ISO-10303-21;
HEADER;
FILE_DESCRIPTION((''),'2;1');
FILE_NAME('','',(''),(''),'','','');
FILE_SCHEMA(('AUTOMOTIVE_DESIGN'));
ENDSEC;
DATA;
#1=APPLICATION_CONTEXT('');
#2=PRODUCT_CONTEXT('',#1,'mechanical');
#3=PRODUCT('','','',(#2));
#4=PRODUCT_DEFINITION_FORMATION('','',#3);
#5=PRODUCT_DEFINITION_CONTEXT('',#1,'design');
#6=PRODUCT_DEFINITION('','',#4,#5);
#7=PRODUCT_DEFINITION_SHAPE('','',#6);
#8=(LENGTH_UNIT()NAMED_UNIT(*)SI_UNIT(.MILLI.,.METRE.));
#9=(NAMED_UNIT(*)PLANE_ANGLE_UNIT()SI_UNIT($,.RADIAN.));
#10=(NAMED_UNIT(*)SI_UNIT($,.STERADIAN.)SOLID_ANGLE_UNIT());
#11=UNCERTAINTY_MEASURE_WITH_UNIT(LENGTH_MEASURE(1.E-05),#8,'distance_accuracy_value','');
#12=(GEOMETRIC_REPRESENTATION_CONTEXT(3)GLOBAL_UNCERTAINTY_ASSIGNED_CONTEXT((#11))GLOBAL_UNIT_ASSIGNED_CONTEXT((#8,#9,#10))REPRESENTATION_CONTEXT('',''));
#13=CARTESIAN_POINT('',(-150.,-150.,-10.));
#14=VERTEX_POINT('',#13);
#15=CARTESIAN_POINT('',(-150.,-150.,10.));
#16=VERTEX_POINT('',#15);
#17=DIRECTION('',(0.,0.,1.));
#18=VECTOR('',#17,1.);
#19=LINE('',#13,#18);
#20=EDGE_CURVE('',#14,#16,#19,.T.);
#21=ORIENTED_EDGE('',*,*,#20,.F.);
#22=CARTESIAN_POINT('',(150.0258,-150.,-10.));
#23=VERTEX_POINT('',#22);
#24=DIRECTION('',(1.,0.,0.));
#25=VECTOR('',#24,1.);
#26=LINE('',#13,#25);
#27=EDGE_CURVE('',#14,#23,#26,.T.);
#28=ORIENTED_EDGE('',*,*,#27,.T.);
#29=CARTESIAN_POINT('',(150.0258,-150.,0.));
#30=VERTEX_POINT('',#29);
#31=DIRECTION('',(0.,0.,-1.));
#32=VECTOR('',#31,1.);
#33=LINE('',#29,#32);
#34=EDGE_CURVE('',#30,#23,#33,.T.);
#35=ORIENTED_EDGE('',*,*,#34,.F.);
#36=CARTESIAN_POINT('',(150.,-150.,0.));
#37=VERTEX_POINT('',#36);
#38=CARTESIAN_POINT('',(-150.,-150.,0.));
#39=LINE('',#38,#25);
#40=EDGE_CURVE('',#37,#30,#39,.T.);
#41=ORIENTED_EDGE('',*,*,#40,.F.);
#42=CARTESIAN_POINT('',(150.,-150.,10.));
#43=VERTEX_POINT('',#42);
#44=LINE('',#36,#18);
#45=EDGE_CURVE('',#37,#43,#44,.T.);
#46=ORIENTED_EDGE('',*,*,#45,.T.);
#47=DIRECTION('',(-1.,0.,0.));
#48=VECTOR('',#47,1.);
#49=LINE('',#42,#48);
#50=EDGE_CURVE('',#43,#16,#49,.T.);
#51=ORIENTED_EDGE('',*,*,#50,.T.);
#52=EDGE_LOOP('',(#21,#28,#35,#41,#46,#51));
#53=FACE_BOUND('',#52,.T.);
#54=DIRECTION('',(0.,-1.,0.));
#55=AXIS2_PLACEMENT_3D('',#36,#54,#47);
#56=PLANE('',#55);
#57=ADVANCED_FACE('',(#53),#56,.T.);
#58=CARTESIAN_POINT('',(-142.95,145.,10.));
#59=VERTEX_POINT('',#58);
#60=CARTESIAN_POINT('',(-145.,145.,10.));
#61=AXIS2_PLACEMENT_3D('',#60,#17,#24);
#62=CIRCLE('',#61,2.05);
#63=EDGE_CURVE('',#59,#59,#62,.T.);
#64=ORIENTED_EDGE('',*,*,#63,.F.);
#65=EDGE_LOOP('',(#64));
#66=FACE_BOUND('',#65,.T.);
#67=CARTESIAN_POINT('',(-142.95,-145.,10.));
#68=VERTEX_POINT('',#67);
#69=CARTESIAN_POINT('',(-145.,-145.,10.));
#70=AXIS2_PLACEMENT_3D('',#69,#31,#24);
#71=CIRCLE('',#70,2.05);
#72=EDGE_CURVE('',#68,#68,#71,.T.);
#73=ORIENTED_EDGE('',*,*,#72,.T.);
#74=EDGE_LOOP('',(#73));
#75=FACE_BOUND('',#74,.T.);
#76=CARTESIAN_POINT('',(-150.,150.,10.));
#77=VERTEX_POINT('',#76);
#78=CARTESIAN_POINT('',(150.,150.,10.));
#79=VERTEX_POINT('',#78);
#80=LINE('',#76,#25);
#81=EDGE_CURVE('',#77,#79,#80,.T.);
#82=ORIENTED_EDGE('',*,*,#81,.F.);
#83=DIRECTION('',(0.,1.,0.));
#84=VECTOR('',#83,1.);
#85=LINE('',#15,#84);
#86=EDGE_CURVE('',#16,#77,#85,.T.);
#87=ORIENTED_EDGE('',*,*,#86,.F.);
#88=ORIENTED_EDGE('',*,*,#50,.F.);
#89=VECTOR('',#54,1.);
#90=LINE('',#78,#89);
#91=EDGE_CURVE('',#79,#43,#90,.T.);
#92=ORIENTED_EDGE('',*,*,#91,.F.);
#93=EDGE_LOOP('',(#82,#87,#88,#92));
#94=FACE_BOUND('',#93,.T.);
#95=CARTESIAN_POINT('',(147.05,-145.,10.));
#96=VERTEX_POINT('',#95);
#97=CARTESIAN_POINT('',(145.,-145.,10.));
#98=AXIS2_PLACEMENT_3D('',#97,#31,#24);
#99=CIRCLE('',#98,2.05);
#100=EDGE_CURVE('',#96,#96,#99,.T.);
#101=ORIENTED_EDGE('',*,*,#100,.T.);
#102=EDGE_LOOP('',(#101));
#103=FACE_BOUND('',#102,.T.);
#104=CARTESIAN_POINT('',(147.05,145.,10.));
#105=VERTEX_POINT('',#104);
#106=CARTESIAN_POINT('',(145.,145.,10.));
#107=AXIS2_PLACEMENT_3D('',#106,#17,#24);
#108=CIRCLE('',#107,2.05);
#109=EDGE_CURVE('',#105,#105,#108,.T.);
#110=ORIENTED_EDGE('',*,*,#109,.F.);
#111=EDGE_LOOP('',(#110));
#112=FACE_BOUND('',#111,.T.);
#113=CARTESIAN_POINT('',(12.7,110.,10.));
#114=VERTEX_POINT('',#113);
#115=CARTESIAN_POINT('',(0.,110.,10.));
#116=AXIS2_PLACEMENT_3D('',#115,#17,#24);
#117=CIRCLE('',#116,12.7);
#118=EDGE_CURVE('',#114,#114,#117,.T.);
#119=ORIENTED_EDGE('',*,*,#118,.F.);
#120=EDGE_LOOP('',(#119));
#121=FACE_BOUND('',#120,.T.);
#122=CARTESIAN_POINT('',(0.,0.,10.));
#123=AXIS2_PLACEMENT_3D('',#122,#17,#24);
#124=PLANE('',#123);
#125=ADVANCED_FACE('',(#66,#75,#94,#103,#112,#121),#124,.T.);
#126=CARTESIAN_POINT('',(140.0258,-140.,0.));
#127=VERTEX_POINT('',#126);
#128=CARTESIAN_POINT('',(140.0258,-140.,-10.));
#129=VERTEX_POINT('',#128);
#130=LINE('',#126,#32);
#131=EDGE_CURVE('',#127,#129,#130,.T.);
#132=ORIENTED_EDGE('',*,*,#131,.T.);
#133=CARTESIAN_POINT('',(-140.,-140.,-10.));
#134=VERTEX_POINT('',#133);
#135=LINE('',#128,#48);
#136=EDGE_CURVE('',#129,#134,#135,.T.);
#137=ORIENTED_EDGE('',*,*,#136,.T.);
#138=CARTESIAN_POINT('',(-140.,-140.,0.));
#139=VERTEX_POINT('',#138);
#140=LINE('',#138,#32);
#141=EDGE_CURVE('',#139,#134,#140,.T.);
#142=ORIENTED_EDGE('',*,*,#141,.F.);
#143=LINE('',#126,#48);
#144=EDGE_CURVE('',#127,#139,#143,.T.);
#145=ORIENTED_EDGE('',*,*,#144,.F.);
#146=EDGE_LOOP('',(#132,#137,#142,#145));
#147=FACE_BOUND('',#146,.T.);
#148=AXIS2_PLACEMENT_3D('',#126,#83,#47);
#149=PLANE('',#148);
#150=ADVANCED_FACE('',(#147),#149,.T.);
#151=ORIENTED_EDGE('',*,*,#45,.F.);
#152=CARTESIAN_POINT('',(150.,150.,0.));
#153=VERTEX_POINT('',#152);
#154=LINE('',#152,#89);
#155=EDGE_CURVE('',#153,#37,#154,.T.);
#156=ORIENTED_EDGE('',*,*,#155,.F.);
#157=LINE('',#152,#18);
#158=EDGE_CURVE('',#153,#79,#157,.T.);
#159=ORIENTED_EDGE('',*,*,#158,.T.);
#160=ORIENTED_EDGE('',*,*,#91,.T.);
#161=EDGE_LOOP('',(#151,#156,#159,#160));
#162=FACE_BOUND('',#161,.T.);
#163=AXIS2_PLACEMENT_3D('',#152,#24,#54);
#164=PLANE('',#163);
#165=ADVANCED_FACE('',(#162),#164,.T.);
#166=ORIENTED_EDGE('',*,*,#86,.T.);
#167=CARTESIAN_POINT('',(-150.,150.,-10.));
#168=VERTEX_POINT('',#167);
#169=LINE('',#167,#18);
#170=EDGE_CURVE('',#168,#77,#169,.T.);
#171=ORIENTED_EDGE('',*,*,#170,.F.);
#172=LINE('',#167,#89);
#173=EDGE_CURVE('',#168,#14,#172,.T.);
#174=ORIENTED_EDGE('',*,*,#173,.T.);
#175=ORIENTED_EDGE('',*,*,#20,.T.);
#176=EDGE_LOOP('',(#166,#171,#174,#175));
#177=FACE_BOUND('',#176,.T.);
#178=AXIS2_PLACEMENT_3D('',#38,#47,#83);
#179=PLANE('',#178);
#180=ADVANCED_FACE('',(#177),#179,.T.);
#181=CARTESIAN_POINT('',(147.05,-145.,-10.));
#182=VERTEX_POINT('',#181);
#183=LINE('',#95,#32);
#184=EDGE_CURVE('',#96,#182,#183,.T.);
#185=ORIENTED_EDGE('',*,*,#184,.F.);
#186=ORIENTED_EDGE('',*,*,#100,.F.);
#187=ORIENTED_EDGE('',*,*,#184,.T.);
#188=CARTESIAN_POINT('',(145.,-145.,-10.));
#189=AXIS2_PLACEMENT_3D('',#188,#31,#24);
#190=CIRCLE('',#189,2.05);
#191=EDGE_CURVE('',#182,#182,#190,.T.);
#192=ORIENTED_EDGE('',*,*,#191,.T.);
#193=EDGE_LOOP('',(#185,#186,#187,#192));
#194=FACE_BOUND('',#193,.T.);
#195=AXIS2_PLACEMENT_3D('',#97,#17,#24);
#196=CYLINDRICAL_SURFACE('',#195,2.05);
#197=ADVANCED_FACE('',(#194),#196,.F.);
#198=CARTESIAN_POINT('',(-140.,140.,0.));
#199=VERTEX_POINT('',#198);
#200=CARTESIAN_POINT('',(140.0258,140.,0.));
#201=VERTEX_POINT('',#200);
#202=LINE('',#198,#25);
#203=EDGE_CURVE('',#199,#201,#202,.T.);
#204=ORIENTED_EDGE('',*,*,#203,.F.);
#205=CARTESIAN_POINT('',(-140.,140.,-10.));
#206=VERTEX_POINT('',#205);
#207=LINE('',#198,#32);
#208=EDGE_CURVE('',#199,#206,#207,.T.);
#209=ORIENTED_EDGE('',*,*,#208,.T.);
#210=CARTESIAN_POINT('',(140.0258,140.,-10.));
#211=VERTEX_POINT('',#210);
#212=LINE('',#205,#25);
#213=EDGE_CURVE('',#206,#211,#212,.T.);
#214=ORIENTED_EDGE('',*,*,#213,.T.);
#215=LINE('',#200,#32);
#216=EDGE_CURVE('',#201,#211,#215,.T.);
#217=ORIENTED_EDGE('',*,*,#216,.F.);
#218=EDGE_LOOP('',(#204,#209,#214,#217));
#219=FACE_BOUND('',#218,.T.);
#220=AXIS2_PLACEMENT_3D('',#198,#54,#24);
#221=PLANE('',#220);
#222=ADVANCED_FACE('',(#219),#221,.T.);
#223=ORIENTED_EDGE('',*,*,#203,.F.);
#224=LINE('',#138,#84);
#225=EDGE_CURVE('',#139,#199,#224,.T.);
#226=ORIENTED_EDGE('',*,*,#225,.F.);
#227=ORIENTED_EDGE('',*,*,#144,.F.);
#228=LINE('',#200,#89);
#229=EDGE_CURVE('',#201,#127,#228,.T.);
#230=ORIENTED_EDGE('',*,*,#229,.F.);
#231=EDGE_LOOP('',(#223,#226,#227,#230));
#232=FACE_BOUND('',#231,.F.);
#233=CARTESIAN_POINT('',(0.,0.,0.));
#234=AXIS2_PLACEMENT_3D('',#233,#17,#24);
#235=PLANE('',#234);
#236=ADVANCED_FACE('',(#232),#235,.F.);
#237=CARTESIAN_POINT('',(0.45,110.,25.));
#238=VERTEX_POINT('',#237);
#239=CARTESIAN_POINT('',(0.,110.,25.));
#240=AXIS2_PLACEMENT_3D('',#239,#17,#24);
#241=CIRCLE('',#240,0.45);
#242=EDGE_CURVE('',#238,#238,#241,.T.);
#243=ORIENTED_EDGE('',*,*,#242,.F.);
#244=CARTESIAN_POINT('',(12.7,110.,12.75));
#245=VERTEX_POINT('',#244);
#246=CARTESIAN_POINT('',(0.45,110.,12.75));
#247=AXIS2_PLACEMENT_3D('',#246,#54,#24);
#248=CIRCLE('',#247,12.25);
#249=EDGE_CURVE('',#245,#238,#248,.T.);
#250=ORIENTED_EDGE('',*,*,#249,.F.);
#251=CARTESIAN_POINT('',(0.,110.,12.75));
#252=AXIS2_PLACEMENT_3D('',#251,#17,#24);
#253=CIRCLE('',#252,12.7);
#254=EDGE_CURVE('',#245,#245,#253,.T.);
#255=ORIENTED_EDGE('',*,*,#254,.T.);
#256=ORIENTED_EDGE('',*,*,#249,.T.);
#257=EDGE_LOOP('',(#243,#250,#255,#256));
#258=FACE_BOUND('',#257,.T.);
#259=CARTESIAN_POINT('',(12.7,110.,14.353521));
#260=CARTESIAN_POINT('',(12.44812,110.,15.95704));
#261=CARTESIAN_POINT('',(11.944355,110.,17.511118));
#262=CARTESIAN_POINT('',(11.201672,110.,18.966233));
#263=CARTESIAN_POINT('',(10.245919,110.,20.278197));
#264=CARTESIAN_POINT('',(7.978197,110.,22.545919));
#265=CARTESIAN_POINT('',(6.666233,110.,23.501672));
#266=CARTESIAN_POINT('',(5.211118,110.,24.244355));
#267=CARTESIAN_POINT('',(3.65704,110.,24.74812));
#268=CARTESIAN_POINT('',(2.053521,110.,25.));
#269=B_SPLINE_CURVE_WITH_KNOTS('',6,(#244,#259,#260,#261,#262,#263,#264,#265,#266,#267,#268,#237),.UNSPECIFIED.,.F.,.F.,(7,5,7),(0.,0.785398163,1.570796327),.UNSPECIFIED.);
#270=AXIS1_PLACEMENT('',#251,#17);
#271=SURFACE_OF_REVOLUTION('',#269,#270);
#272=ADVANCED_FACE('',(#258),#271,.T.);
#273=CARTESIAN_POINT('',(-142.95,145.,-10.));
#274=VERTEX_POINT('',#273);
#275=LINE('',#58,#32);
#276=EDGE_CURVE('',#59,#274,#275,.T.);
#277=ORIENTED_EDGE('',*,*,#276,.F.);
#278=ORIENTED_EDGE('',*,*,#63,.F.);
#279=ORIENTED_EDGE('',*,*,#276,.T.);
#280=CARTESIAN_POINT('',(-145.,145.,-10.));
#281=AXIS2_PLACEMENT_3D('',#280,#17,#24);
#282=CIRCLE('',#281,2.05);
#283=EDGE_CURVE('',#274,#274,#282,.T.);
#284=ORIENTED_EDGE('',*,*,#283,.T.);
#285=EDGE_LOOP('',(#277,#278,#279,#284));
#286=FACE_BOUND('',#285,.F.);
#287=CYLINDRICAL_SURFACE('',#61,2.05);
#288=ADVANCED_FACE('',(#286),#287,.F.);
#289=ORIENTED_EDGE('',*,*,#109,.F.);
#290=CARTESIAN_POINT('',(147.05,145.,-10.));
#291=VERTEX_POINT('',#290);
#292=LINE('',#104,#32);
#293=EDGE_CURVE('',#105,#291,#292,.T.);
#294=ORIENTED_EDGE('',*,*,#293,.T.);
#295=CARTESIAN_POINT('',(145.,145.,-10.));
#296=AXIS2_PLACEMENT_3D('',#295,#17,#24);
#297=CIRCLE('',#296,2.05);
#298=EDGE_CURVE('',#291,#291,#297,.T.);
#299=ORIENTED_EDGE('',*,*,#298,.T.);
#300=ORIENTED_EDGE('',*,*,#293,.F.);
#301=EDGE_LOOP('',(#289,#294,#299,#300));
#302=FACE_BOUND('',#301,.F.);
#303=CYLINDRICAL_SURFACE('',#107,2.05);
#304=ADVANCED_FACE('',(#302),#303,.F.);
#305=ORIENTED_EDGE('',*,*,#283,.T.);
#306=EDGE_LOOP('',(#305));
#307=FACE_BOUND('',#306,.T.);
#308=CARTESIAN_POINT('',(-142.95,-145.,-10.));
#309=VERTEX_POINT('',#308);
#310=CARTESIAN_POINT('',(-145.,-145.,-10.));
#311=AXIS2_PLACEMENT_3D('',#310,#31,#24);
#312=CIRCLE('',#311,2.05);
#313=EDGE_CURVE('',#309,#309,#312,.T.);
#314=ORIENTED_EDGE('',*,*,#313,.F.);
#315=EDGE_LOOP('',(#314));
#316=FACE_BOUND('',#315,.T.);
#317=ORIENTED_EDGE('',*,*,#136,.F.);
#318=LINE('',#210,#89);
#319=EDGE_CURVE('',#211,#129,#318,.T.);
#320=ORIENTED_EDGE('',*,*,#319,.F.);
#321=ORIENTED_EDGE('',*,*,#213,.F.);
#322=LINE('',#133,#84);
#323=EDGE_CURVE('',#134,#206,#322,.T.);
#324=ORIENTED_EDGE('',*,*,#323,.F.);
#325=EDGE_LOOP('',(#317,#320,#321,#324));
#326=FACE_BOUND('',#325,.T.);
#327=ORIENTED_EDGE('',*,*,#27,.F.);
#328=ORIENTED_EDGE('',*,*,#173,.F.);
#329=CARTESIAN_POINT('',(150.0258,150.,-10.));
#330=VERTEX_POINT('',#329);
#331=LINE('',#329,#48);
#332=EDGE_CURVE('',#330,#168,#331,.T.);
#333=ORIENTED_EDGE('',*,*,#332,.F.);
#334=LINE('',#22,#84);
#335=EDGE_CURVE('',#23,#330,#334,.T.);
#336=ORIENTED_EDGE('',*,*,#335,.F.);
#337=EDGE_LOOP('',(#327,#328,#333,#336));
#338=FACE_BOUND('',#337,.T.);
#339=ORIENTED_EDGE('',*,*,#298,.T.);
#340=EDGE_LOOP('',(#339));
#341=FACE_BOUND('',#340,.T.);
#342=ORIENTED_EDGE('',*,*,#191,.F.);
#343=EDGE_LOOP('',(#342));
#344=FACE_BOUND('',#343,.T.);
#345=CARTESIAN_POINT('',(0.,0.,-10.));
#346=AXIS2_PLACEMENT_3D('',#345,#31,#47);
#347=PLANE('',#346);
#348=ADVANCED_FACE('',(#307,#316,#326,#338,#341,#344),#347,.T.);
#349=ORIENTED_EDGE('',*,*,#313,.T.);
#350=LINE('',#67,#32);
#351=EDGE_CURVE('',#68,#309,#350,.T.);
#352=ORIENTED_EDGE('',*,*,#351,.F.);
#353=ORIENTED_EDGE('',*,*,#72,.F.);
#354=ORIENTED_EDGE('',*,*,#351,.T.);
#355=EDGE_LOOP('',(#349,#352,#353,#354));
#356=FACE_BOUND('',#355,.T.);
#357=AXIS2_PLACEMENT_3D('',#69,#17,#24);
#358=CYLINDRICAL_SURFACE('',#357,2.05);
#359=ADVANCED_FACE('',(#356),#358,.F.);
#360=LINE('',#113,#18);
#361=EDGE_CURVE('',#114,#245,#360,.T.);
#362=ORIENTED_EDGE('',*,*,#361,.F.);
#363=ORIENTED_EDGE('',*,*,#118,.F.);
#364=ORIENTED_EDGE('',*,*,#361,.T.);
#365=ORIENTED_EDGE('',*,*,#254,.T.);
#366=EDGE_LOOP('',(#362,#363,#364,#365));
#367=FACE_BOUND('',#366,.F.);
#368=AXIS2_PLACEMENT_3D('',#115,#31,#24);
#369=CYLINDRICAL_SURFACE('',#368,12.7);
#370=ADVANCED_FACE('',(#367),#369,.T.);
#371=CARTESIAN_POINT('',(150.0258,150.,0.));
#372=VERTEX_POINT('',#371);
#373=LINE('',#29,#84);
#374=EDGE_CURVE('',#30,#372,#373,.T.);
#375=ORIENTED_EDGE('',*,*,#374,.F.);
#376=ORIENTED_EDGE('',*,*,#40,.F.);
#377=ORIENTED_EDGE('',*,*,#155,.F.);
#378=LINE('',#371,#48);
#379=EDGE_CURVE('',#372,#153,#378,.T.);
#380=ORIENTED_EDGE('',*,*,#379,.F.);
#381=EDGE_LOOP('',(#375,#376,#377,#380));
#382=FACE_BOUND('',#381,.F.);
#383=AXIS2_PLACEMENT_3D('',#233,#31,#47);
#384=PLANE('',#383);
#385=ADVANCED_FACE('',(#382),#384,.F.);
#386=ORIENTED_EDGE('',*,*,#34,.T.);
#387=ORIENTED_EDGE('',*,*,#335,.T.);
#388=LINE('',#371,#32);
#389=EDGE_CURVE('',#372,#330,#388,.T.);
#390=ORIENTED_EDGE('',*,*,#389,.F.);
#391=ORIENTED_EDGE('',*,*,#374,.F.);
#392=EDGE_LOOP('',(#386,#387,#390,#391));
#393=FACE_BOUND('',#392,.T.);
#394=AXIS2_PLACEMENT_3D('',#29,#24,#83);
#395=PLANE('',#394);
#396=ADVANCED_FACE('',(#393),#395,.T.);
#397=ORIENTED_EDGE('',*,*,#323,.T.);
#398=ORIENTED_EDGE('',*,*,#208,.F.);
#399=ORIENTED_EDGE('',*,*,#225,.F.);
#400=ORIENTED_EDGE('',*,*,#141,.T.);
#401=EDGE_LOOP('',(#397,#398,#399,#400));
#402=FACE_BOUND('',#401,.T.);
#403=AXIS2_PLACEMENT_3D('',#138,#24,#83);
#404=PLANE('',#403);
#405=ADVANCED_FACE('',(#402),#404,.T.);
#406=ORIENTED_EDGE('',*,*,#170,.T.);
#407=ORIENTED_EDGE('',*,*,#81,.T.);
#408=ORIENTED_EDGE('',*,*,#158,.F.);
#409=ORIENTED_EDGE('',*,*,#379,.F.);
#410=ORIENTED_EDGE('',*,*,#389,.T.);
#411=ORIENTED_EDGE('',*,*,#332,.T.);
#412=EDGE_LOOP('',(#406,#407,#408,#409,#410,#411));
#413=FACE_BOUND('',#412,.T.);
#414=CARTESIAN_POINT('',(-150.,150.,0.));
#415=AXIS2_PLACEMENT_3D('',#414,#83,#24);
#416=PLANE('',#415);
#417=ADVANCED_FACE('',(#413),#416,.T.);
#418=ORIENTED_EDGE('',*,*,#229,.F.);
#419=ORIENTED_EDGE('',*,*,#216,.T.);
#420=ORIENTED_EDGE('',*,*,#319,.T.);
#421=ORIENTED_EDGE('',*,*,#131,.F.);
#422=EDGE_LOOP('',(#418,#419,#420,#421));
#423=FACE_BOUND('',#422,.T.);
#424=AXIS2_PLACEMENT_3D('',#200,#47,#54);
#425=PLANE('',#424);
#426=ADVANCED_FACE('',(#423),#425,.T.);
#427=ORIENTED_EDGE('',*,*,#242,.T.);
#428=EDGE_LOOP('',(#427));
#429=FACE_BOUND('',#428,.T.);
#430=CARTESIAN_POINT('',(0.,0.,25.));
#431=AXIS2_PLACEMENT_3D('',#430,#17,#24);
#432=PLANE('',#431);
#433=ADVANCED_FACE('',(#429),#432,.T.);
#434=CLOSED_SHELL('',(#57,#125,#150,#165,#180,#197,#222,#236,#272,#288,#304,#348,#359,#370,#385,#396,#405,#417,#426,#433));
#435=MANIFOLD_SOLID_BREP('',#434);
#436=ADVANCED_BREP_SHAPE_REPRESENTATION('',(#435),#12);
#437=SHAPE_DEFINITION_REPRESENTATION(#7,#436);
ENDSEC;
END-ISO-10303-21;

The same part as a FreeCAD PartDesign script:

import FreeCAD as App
import Part
import Sketcher
from FreeCAD import Vector
Q = App.Units.Quantity


def edges_at(feature, points):
    """Names of the edges that pass closest to the given points."""
    edges = feature.Shape.Edges
    near = lambda p: min(range(len(edges)), key=lambda i: edges[i].distToShape(Part.Vertex(*p))[0])
    return sorted({f"Edge{near(p) + 1}" for p in points})

doc = App.newDocument("Part")
body = doc.addObject("PartDesign::Body", "Body")

sketch1 = body.newObject("Sketcher::SketchObject", "Sketch")
sketch1.AttachmentSupport = (doc.getObject("XY_Plane"), [""])
sketch1.MapMode = "FlatFace"
sketch1.addGeometry([
    Part.LineSegment(Vector(150, 150, 0), Vector(-150, 150, 0)),
    Part.LineSegment(Vector(-150, 150, 0), Vector(-150, -150, 0)),
    Part.LineSegment(Vector(-150, -150, 0), Vector(150, -150, 0)),
    Part.LineSegment(Vector(150, -150, 0), Vector(150, 150, 0)),
], False)
sketch1.addConstraint([
    Sketcher.Constraint("Coincident", 0, 2, 1, 1),
    Sketcher.Constraint("Coincident", 1, 2, 2, 1),
    Sketcher.Constraint("Coincident", 2, 2, 3, 1),
    Sketcher.Constraint("Coincident", 3, 2, 0, 1),
    Sketcher.Constraint("Horizontal", 0),
    Sketcher.Constraint("Vertical", 1),
    Sketcher.Constraint("Horizontal", 2),
    Sketcher.Constraint("Vertical", 3),
    Sketcher.Constraint("Symmetric", 0, 2, 2, 2, -1, 1),
    Sketcher.Constraint("Equal", 2, 1),
    Sketcher.Constraint("DistanceX", 0, 2, 0, 1, Q("300 mm")),
])
pad1 = body.newObject("PartDesign::Pad", "Pad")
pad1.Profile = sketch1
pad1.Length = 10

sketch2 = body.newObject("Sketcher::SketchObject", "Sketch001")
sketch2.AttachmentSupport = (doc.getObject("XY_Plane"), [""])
sketch2.MapMode = "FlatFace"
sketch2.addGeometry([
    Part.LineSegment(Vector(150.0258, -150, 0), Vector(-150, -150, 0)),
    Part.LineSegment(Vector(-150, -150, 0), Vector(-150, 150, 0)),
    Part.LineSegment(Vector(-150, 150, 0), Vector(150.0258, 150, 0)),
    Part.LineSegment(Vector(150.0258, 150, 0), Vector(150.0258, -150, 0)),
    Part.LineSegment(Vector(-140, -140, 0), Vector(140.0258, -140, 0)),
    Part.LineSegment(Vector(140.0258, -140, 0), Vector(140.0258, 140, 0)),
    Part.LineSegment(Vector(140.0258, 140, 0), Vector(-140, 140, 0)),
    Part.LineSegment(Vector(-140, 140, 0), Vector(-140, -140, 0)),
], False)
sketch2.addConstraint([
    Sketcher.Constraint("Coincident", 0, 2, 1, 1),
    Sketcher.Constraint("Coincident", 1, 2, 2, 1),
    Sketcher.Constraint("Coincident", 2, 2, 3, 1),
    Sketcher.Constraint("Coincident", 3, 2, 0, 1),
    Sketcher.Constraint("Coincident", 4, 2, 5, 1),
    Sketcher.Constraint("Coincident", 5, 2, 6, 1),
    Sketcher.Constraint("Coincident", 6, 2, 7, 1),
    Sketcher.Constraint("Coincident", 7, 2, 4, 1),
    Sketcher.Constraint("Horizontal", 0),
    Sketcher.Constraint("Vertical", 1),
    Sketcher.Constraint("Horizontal", 2),
    Sketcher.Constraint("Vertical", 3),
    Sketcher.Constraint("Horizontal", 4),
    Sketcher.Constraint("Vertical", 5),
    Sketcher.Constraint("Horizontal", 6),
    Sketcher.Constraint("Vertical", 7),
    Sketcher.Constraint("DistanceX", 4, 2, 3, 2, Q("10 mm")),
    Sketcher.Constraint("DistanceY", 3, 2, 4, 2, Q("10 mm")),
    Sketcher.Constraint("DistanceY", 5, 2, 2, 2, Q("10 mm")),
    Sketcher.Constraint("DistanceX", 1, 2, 6, 2, Q("10 mm")),
    Sketcher.Constraint("DistanceY", 1, 1, 1, 2, Q("300 mm")),
    Sketcher.Constraint("DistanceX", 0, 2, -1, 1, Q("150 mm")),
    Sketcher.Constraint("DistanceY", 0, 2, -1, 1, Q("150 mm")),
    Sketcher.Constraint("DistanceX", 0, 2, 0, 1, Q("300.0258 mm")),
])
pad2 = body.newObject("PartDesign::Pad", "Pad001")
pad2.Profile = sketch2
pad2.Length = 10
pad2.Reversed = True

sketch3 = body.newObject("Sketcher::SketchObject", "Sketch002")
sketch3.AttachmentSupport = (doc.getObject("XY_Plane"), [""])
sketch3.MapMode = "FlatFace"
sketch3.AttachmentOffset = App.Placement(Vector(0, 0, 10), App.Rotation())
sketch3.addGeometry([
    Part.Circle(Vector(-145, 145, 0), Vector(0, 0, 1), 2.05),
    Part.Circle(Vector(145, 145, 0), Vector(0, 0, 1), 2.05),
], False)
sketch3.addConstraint([
    Sketcher.Constraint("Equal", 0, 1),
    Sketcher.Constraint("Symmetric", 0, 3, 1, 3, -2),
    Sketcher.Constraint("Diameter", 0, Q("4.1 mm")),
    Sketcher.Constraint("DistanceX", 0, 3, -1, 1, Q("145 mm")),
    Sketcher.Constraint("DistanceY", -1, 1, 0, 3, Q("145 mm")),
])
pocket1 = body.newObject("PartDesign::Pocket", "Pocket")
pocket1.Profile = sketch3
pocket1.Length = 20
doc.recompute()

mirrored = body.newObject("PartDesign::Mirrored", "Mirrored")
mirrored.Originals = [pocket1]
mirrored.MirrorPlane = (doc.getObject("XZ_Plane"), [""])
body.Tip = mirrored

sketch4 = body.newObject("Sketcher::SketchObject", "Sketch003")
sketch4.AttachmentSupport = (doc.getObject("XY_Plane"), [""])
sketch4.MapMode = "FlatFace"
sketch4.AttachmentOffset = App.Placement(Vector(0, 0, 10), App.Rotation())
sketch4.addGeometry(Part.Circle(Vector(0, 110, 0), Vector(0, 0, 1), 12.7), False)
sketch4.addConstraint([
    Sketcher.Constraint("PointOnObject", 0, 3, -2),
    Sketcher.Constraint("Diameter", 0, Q("25.4 mm")),
    Sketcher.Constraint("DistanceY", -1, 1, 0, 3, Q("110 mm")),
])
pad3 = body.newObject("PartDesign::Pad", "Pad002")
pad3.Profile = sketch4
pad3.Length = 15
doc.recompute()

fillet = body.newObject("PartDesign::Fillet", "Fillet")
fillet.Base = (pad3, edges_at(pad3, [(-12.7, 110, 25)]))
fillet.Radius = 12.25

doc.recompute()
